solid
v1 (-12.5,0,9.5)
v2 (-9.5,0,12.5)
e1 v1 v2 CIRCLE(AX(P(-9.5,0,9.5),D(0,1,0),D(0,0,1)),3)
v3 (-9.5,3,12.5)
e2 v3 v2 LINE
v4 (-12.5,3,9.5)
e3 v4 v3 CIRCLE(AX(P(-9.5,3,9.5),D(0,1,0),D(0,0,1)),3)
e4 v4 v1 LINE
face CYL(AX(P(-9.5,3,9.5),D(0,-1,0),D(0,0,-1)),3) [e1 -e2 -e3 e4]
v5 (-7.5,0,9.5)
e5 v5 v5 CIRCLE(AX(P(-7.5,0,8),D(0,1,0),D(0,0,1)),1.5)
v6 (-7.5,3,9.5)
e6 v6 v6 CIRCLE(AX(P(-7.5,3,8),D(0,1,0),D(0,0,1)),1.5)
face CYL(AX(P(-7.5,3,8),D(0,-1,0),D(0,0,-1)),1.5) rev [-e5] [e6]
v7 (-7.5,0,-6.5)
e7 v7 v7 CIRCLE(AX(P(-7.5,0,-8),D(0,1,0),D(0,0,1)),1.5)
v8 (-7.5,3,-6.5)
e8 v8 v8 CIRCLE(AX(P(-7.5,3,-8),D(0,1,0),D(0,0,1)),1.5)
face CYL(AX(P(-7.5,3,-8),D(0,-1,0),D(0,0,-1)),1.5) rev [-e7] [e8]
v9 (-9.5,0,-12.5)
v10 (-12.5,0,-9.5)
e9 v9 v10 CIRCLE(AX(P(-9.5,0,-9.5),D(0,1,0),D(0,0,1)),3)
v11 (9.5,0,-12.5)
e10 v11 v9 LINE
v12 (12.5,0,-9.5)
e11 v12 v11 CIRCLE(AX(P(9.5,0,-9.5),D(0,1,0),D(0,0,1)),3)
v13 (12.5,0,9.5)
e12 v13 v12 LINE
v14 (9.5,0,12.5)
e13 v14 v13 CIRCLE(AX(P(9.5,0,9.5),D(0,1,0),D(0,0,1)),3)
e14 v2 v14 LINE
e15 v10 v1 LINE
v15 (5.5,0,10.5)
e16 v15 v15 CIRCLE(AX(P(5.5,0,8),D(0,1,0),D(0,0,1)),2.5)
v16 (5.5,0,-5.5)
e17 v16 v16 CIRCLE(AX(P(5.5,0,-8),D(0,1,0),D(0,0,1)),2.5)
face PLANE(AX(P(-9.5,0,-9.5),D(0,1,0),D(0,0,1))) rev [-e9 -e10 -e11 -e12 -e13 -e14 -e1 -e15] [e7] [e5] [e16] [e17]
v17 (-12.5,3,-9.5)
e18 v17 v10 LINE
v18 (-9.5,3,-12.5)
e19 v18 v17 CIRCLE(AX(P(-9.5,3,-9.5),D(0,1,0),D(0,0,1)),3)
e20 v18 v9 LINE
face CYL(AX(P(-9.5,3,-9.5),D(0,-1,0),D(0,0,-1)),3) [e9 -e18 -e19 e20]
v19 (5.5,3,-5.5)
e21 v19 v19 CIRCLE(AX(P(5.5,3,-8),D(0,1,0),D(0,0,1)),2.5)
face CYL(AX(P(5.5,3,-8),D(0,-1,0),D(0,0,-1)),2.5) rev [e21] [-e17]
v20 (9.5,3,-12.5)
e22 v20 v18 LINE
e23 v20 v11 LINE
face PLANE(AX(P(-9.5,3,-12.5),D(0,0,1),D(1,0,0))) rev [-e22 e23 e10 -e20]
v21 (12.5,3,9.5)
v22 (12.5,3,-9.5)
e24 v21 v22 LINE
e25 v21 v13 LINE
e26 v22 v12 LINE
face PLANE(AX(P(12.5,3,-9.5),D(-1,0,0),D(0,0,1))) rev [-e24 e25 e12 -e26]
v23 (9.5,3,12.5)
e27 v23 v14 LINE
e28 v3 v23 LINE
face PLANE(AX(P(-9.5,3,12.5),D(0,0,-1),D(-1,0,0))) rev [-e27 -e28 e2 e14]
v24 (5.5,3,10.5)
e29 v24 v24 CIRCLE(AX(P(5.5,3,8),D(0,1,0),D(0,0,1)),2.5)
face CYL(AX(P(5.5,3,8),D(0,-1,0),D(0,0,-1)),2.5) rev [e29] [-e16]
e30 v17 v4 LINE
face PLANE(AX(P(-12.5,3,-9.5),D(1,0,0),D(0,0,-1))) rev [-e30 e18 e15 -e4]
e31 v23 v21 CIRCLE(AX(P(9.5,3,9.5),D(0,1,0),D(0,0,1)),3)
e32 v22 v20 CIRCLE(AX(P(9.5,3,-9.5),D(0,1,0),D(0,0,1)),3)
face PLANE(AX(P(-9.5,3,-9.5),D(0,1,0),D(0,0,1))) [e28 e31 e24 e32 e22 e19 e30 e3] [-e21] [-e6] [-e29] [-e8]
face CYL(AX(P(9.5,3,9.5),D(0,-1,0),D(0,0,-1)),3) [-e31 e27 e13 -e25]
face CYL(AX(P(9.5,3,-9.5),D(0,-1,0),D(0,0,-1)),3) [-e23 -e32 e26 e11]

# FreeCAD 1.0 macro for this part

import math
import FreeCAD as App
import Part
import Sketcher

doc = App.newDocument("Part")
body = doc.addObject("PartDesign::Body", "Body")

sketch1 = body.newObject("Sketcher::SketchObject", "Sketch")
sketch1.AttachmentSupport = (doc.getObject("XZ_Plane"), [""])
sketch1.MapMode = "FlatFace"
sketch1.addGeometry([
    Part.LineSegment(App.Vector(9.5, -12.5, 0), App.Vector(-9.5, -12.5, 0)),
    Part.ArcOfCircle(Part.Circle(App.Vector(-9.5, -9.5, 0), App.Vector(0, 0, 1), 3), math.radians(180), math.radians(270)),
    Part.LineSegment(App.Vector(-12.5, -9.5, 0), App.Vector(-12.5, 9.5, 0)),
    Part.ArcOfCircle(Part.Circle(App.Vector(-9.5, 9.5, 0), App.Vector(0, 0, 1), 3), math.radians(90), math.radians(180)),
    Part.LineSegment(App.Vector(-9.5, 12.5, 0), App.Vector(9.5, 12.5, 0)),
    Part.ArcOfCircle(Part.Circle(App.Vector(9.5, 9.5, 0), App.Vector(0, 0, 1), 3), math.radians(0), math.radians(90)),
    Part.LineSegment(App.Vector(12.5, 9.5, 0), App.Vector(12.5, -9.5, 0)),
    Part.ArcOfCircle(Part.Circle(App.Vector(9.5, -9.5, 0), App.Vector(0, 0, 1), 3), math.radians(-90), math.radians(0)),
    Part.Circle(App.Vector(5.5, 8, 0), App.Vector(0, 0, 1), 2.5),
    Part.Circle(App.Vector(-7.5, 8, 0), App.Vector(0, 0, 1), 1.5),
    Part.Circle(App.Vector(5.5, -8, 0), App.Vector(0, 0, 1), 2.5),
    Part.Circle(App.Vector(-7.5, -8, 0), App.Vector(0, 0, 1), 1.5),
], False)
sketch1.addConstraint([
    Sketcher.Constraint("Tangent", 0, 2, 1, 2),
    Sketcher.Constraint("Tangent", 1, 1, 2, 1),
    Sketcher.Constraint("Tangent", 2, 2, 3, 2),
    Sketcher.Constraint("Tangent", 3, 1, 4, 1),
    Sketcher.Constraint("Tangent", 4, 2, 5, 2),
    Sketcher.Constraint("Tangent", 5, 1, 6, 1),
    Sketcher.Constraint("Tangent", 6, 2, 7, 2),
    Sketcher.Constraint("Tangent", 7, 1, 0, 1),
    Sketcher.Constraint("Horizontal", 0),
    Sketcher.Constraint("Vertical", 2),
    Sketcher.Constraint("Horizontal", 4),
    Sketcher.Constraint("Vertical", 6),
    Sketcher.Constraint("Equal", 1, 3),
    Sketcher.Constraint("Equal", 3, 5),
    Sketcher.Constraint("Equal", 5, 7),
    Sketcher.Constraint("Equal", 8, 10),
    Sketcher.Constraint("Equal", 9, 11),
    Sketcher.Constraint("Symmetric", 1, 3, 5, 3, -1, 1),
    Sketcher.Constraint("Symmetric", 8, 3, 10, 3, -1),
    Sketcher.Constraint("Symmetric", 9, 3, 11, 3, -1),
    Sketcher.Constraint("Horizontal", 8, 3, 9, 3),
    Sketcher.Constraint("Equal", 4, 2),
    Sketcher.Constraint("Diameter", 8, 5.0),
    Sketcher.Constraint("Diameter", 9, 3.0),
    Sketcher.Constraint("Radius", 1, 3.0),
    Sketcher.Constraint("DistanceX", 0, 2, 0, 1, 19.0),
    Sketcher.Constraint("DistanceY", -1, 1, 8, 3, 8.0),
    Sketcher.Constraint("DistanceX", 8, 3, 5, 3, 4.0),
    Sketcher.Constraint("DistanceX", 3, 3, 9, 3, 2.0),
])
pad1 = body.newObject("PartDesign::Pad", "Pad")
pad1.Profile = sketch1
pad1.Length = 3
pad1.Reversed = True

doc.recompute()
